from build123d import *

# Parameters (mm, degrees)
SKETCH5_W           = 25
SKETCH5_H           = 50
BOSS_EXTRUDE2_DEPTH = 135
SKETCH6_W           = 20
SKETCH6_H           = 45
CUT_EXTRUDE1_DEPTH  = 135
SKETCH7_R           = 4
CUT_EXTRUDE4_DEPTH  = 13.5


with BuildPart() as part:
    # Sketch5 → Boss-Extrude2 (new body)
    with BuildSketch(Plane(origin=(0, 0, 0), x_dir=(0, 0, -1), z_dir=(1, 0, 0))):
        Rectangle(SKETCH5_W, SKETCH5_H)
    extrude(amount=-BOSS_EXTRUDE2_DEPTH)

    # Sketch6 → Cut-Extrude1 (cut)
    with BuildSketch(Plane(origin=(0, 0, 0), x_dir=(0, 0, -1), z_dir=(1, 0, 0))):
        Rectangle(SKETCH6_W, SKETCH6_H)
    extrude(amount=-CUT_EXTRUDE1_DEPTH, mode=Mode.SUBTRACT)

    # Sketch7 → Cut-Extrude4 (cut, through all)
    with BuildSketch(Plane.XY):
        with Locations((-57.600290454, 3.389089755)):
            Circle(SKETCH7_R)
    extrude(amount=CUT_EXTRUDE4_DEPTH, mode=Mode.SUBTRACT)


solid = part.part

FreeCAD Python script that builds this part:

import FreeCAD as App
import Part
import Sketcher
from FreeCAD import Vector
Q = App.Units.Quantity


def add_polygon(sketch, points):
    """Adds a closed chain of lines whose ends are joined by coincident constraints."""
    first, n = sketch.GeometryCount, len(points)
    for a, b in zip(points, points[1:] + points[:1]):
        sketch.addGeometry(Part.LineSegment(App.Vector(*a, 0), App.Vector(*b, 0)), False)
    for i in range(n):
        sketch.addConstraint(Sketcher.Constraint("Coincident", first + i, 2, first + (i + 1) % n, 1))

doc = App.newDocument("Part")
body = doc.addObject("PartDesign::Body", "Body")

# Sketch on YZ plane
sketch1 = body.newObject("Sketcher::SketchObject", "Sketch")
sketch1.AttachmentSupport = (doc.getObject("YZ_Plane"), [""])
sketch1.MapMode = "FlatFace"
add_polygon(sketch1, [(25, 12.5), (-25, 12.5), (-25, -12.5), (25, -12.5)])  # lines 0-3
sketch1.addConstraint(Sketcher.Constraint("Horizontal", 0))
sketch1.addConstraint(Sketcher.Constraint("Vertical", 1))
sketch1.addConstraint(Sketcher.Constraint("Horizontal", 2))
sketch1.addConstraint(Sketcher.Constraint("Vertical", 3))
sketch1.addConstraint(Sketcher.Constraint("Symmetric", 0, 2, 2, 2, -1, 1))
sketch1.addConstraint(Sketcher.Constraint("DistanceX", 0, 2, 0, 1, Q("50 mm")))
sketch1.addConstraint(Sketcher.Constraint("DistanceY", 1, 2, 1, 1, Q("25 mm")))
pad1 = body.newObject("PartDesign::Pad", "Pad")
pad1.Profile = sketch1
pad1.Length = 135
pad1.Reversed = True

# Sketch on YZ plane
sketch2 = body.newObject("Sketcher::SketchObject", "Sketch001")
sketch2.AttachmentSupport = (doc.getObject("YZ_Plane"), [""])
sketch2.MapMode = "FlatFace"
add_polygon(sketch2, [(22.5, 10), (-22.5, 10), (-22.5, -10), (22.5, -10)])  # lines 0-3
sketch2.addConstraint(Sketcher.Constraint("Horizontal", 0))
sketch2.addConstraint(Sketcher.Constraint("Vertical", 1))
sketch2.addConstraint(Sketcher.Constraint("Horizontal", 2))
sketch2.addConstraint(Sketcher.Constraint("Vertical", 3))
sketch2.addConstraint(Sketcher.Constraint("Symmetric", 0, 2, 2, 2, -1, 1))
sketch2.addConstraint(Sketcher.Constraint("DistanceX", 0, 2, 0, 1, Q("45 mm")))
sketch2.addConstraint(Sketcher.Constraint("DistanceY", 1, 2, 1, 1, Q("20 mm")))
pocket1 = body.newObject("PartDesign::Pocket", "Pocket")
pocket1.Profile = sketch2
pocket1.Length = 135

# Sketch on XY plane
sketch3 = body.newObject("Sketcher::SketchObject", "Sketch002")
sketch3.AttachmentSupport = (doc.getObject("XY_Plane"), [""])
sketch3.MapMode = "FlatFace"
sketch3.addGeometry(Part.Circle(Vector(-57.60029, 3.38909, 0), Vector(0, 0, 1), 4), False)
sketch3.addConstraint(Sketcher.Constraint("Diameter", 0, Q("8 mm")))
sketch3.addConstraint(Sketcher.Constraint("DistanceX", 0, 3, -1, 1, Q("57.60029 mm")))
sketch3.addConstraint(Sketcher.Constraint("DistanceY", -1, 1, 0, 3, Q("3.38909 mm")))
pocket2 = body.newObject("PartDesign::Pocket", "Pocket001")
pocket2.Profile = sketch3
pocket2.Type = "ThroughAll"
pocket2.Reversed = True

doc.recompute()
